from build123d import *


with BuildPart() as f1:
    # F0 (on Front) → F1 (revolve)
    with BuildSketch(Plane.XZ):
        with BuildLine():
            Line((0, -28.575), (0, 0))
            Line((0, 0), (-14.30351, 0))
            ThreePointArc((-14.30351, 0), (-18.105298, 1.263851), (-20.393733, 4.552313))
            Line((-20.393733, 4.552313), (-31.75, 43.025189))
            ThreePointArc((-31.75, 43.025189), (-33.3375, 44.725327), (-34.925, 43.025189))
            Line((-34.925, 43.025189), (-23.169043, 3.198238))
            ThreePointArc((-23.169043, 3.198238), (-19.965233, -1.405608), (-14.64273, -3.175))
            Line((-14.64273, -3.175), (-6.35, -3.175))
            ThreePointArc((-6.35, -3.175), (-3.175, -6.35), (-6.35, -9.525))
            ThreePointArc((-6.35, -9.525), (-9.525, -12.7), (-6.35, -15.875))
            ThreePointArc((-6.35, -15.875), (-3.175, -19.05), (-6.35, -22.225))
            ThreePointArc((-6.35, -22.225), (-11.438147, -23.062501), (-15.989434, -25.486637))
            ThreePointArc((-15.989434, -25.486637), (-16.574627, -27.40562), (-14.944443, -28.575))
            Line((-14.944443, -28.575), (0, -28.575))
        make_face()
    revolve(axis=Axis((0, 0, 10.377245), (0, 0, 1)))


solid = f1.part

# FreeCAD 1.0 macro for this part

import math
import FreeCAD as App
import Part
import Sketcher
Q = App.Units.Quantity

doc = App.newDocument("Part")
params = doc.addObject("Spreadsheet::Sheet", "Params")
for row, (alias, value) in enumerate([
    ("sketch1_radius", "0.2499999 in"),
    ("sketch1_radius2", "0.3500001 in"),
    ("sketch1_radius3", "0.125 in"),
    ("sketch1_radius4", "0.125 in"),
    ("sketch1_radius5", "0.125 in"),
    ("revolution_angle", "360 deg"),
], start=1):
    params.set(f"A{row}", alias)
    params.set(f"B{row}", "=" + value)
    params.setAlias(f"B{row}", alias)

body = doc.addObject("PartDesign::Body", "Body")

# Sketch on XZ plane
sketch1 = doc.addObject("Sketcher::SketchObject", "Sketch")
body.addObject(sketch1)
sketch1.AttachmentSupport = (doc.XZ_Plane, [""])
sketch1.MapMode = "FlatFace"
sketch1.addGeometry(Part.LineSegment(App.Vector(0, -28.575, 0), App.Vector(0, 0, 0)), False)
sketch1.addGeometry(Part.LineSegment(App.Vector(0, 0, 0), App.Vector(-14.30351, 0, 0)), False)
sketch1.addGeometry(Part.ArcOfCircle(Part.Circle(App.Vector(-14.303511, 6.349998, 0), App.Vector(0, 0, 1), 6.349998), math.radians(-163.554686), math.radians(-89.999989)), False)
sketch1.addGeometry(Part.LineSegment(App.Vector(-20.393733, 4.552313, 0), App.Vector(-31.75, 43.025189, 0)), False)
sketch1.addGeometry(Part.ArcOfCircle(Part.Circle(App.Vector(-33.3375, 43.134096, 0), App.Vector(0, 0, 1), 1.591231), math.radians(-3.924494), math.radians(183.924494)), False)
sketch1.addGeometry(Part.LineSegment(App.Vector(-34.925, 43.025189, 0), App.Vector(-23.169043, 3.198238, 0)), False)
sketch1.addGeometry(Part.ArcOfCircle(Part.Circle(App.Vector(-14.642729, 5.715001, 0), App.Vector(0, 0, 1), 8.890001), math.radians(-163.554663), math.radians(-90.000005)), False)
sketch1.addGeometry(Part.LineSegment(App.Vector(-14.64273, -3.175, 0), App.Vector(-6.35, -3.175, 0)), False)
sketch1.addGeometry(Part.ArcOfCircle(Part.Circle(App.Vector(-6.35, -6.35, 0), App.Vector(0, 0, 1), 3.175), math.radians(-90), math.radians(90)), False)
sketch1.addGeometry(Part.ArcOfCircle(Part.Circle(App.Vector(-6.35, -12.7, 0), App.Vector(0, 0, 1), 3.175), math.radians(90), math.radians(270)), False)
sketch1.addGeometry(Part.ArcOfCircle(Part.Circle(App.Vector(-6.35, -19.05, 0), App.Vector(0, 0, 1), 3.175), math.radians(-90), math.radians(90)), False)
sketch1.addGeometry(Part.ArcOfCircle(Part.Circle(App.Vector(-6.349999, -38.100002, 0), App.Vector(0, 0, 1), 15.875002), math.radians(90.000004), math.radians(127.387928)), False)
sketch1.addGeometry(Part.ArcOfCircle(Part.Circle(App.Vector(-14.944444, -26.854025, 0), App.Vector(0, 0, 1), 1.720975), math.radians(127.387921), math.radians(270.000021)), False)
sketch1.addGeometry(Part.LineSegment(App.Vector(-14.944443, -28.575, 0), App.Vector(0, -28.575, 0)), False)
sketch1.addConstraint(Sketcher.Constraint("Coincident", 0, 2, 1, 1))
sketch1.addConstraint(Sketcher.Constraint("Coincident", 1, 2, 2, 2))
sketch1.addConstraint(Sketcher.Constraint("Coincident", 2, 1, 3, 1))
sketch1.addConstraint(Sketcher.Constraint("Coincident", 3, 2, 4, 1))
sketch1.addConstraint(Sketcher.Constraint("Coincident", 4, 2, 5, 1))
sketch1.addConstraint(Sketcher.Constraint("Coincident", 5, 2, 6, 1))
sketch1.addConstraint(Sketcher.Constraint("Coincident", 6, 2, 7, 1))
sketch1.addConstraint(Sketcher.Constraint("Coincident", 7, 2, 8, 2))
sketch1.addConstraint(Sketcher.Constraint("Coincident", 8, 1, 9, 1))
sketch1.addConstraint(Sketcher.Constraint("Coincident", 9, 2, 10, 2))
sketch1.addConstraint(Sketcher.Constraint("Coincident", 10, 1, 11, 1))
sketch1.addConstraint(Sketcher.Constraint("Coincident", 11, 2, 12, 1))
sketch1.addConstraint(Sketcher.Constraint("Coincident", 12, 2, 13, 1))
sketch1.addConstraint(Sketcher.Constraint("Coincident", 13, 2, 0, 1))
sketch1.addConstraint(Sketcher.Constraint("Vertical", 0))
sketch1.addConstraint(Sketcher.Constraint("Horizontal", 1))
sketch1.addConstraint(Sketcher.Constraint("Horizontal", 7))
sketch1.addConstraint(Sketcher.Constraint("Horizontal", 13))
sketch1.addConstraint(Sketcher.Constraint("Coincident", 0, 2, -1, 1))
sketch1.addConstraint(Sketcher.Constraint("Radius", 2, Q("0.2499999 in")))
sketch1.addConstraint(Sketcher.Constraint("Radius", 6, Q("0.3500001 in")))
sketch1.addConstraint(Sketcher.Constraint("Radius", 8, Q("0.125 in")))
sketch1.addConstraint(Sketcher.Constraint("Radius", 9, Q("0.125 in")))
sketch1.addConstraint(Sketcher.Constraint("Radius", 10, Q("0.125 in")))
sketch1.addConstraint(Sketcher.Constraint("Radius", 11, Q("0.6250001 in")))
sketch1.addConstraint(Sketcher.Constraint("DistanceY", 10, 3, 2, 3, Q("0.9999999 in")))
sketch1.addConstraint(Sketcher.Constraint("DistanceY", 13, 2, 9, 2, Q("0.5 in")))
sketch1.addConstraint(Sketcher.Constraint("DistanceX", 8, 3, -1, 1, Q("0.25 in")))
sketch1.addConstraint(Sketcher.Constraint("DistanceX", 9, 3, -1, 1, Q("0.25 in")))
sketch1.addConstraint(Sketcher.Constraint("DistanceX", 10, 3, -1, 1, Q("0.25 in")))
sketch1.addConstraint(Sketcher.Constraint("DistanceX", 11, 3, -1, 1, Q("0.25 in")))
sketch1.addConstraint(Sketcher.Constraint("DistanceX", 3, 2, -1, 1, Q("1.25 in")))
sketch1.addConstraint(Sketcher.Constraint("DistanceX", 7, 2, -1, 1, Q("0.25 in")))
sketch1.addConstraint(Sketcher.Constraint("DistanceX", 8, 1, -1, 1, Q("0.25 in")))
sketch1.addConstraint(Sketcher.Constraint("DistanceX", 9, 2, -1, 1, Q("0.25 in")))
sketch1.addConstraint(Sketcher.Constraint("DistanceX", 10, 1, -1, 1, Q("0.25 in")))
sketch1.addConstraint(Sketcher.Constraint("DistanceX", 4, 3, -1, 1, Q("1.3125 in")))
sketch1.addConstraint(Sketcher.Constraint("DistanceX", 4, 2, -1, 1, Q("1.375 in")))
sketch1.addConstraint(Sketcher.Constraint("Radius", 4, Q("1.591231 mm")))
sketch1.addConstraint(Sketcher.Constraint("Radius", 12, Q("1.720975 mm")))
sketch1.addConstraint(Sketcher.Constraint("DistanceX", 1, 2, 1, 1, Q("14.30351 mm")))
sketch1.addConstraint(Sketcher.Constraint("DistanceX", 7, 1, 7, 2, Q("8.29273 mm")))
sketch1.addConstraint(Sketcher.Constraint("DistanceX", 13, 1, 13, 2, Q("14.944443 mm")))
sketch1.addConstraint(Sketcher.Constraint("DistanceX", 2, 3, -1, 1, Q("14.303511 mm")))
sketch1.addConstraint(Sketcher.Constraint("DistanceX", 6, 3, -1, 1, Q("14.642729 mm")))
sketch1.addConstraint(Sketcher.Constraint("DistanceY", -1, 1, 3, 2, Q("43.025189 mm")))
sketch1.addConstraint(Sketcher.Constraint("DistanceY", 2, 1, 6, 3, Q("1.162688 mm")))
sketch1.addConstraint(Sketcher.Constraint("DistanceX", 5, 2, 2, 1, Q("2.77531 mm")))
sketch1.addConstraint(Sketcher.Constraint("DistanceX", 11, 2, 12, 3, Q("1.04499 mm")))
sketch1.setExpression("Constraints[19]", "Params.sketch1_radius")
sketch1.setExpression("Constraints[20]", "Params.sketch1_radius2")
sketch1.setExpression("Constraints[21]", "Params.sketch1_radius3")
sketch1.setExpression("Constraints[22]", "Params.sketch1_radius4")
sketch1.setExpression("Constraints[23]", "Params.sketch1_radius5")
revolution = doc.addObject("PartDesign::Revolution", "Revolution")
body.addObject(revolution)
revolution.Profile = sketch1
revolution.ReferenceAxis = (sketch1, ["V_Axis"])
revolution.setExpression("Angle", "Params.revolution_angle")

doc.recompute()
